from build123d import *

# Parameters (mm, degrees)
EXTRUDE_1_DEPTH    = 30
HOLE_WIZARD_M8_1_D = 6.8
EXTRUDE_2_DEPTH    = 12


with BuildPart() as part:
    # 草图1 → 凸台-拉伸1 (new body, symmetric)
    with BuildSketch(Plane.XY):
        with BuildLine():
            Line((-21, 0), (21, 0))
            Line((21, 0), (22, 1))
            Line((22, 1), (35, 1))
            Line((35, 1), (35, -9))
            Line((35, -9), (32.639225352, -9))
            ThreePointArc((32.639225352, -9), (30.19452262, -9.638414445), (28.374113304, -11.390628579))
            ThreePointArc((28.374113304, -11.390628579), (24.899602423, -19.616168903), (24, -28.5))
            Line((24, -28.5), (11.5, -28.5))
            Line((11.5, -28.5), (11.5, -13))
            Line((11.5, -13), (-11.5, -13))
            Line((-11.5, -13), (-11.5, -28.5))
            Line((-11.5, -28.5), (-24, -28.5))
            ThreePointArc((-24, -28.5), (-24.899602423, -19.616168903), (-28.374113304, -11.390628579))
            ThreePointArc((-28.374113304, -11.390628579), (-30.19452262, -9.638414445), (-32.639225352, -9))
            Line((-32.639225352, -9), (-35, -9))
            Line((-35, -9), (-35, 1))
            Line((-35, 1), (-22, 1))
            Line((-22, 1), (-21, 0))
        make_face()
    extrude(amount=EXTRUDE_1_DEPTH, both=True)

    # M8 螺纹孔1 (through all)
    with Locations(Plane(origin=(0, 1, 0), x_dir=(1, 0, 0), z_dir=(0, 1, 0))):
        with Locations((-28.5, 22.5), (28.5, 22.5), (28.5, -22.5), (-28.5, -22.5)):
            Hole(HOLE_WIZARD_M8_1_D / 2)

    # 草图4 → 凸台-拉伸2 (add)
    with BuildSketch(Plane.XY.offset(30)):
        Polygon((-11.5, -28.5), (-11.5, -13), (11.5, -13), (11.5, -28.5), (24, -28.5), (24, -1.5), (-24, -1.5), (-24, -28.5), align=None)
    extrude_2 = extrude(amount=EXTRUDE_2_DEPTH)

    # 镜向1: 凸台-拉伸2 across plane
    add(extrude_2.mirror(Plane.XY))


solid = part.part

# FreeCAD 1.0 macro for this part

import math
import FreeCAD as App
import Part
import Sketcher
Q = App.Units.Quantity

doc = App.newDocument("Part")
body = doc.addObject("PartDesign::Body", "Body")

sketch1 = body.newObject("Sketcher::SketchObject", "Sketch")
sketch1.AttachmentSupport = (doc.getObject("XY_Plane"), [""])
sketch1.MapMode = "FlatFace"
sketch1.addGeometry(Part.LineSegment(App.Vector(21, 0, 0), App.Vector(-21, 0, 0)), False)
sketch1.addGeometry(Part.LineSegment(App.Vector(-21, 0, 0), App.Vector(-22, 1, 0)), False)
sketch1.addGeometry(Part.LineSegment(App.Vector(-22, 1, 0), App.Vector(-35, 1, 0)), False)
sketch1.addGeometry(Part.LineSegment(App.Vector(-35, 1, 0), App.Vector(-35, -9, 0)), False)
sketch1.addGeometry(Part.LineSegment(App.Vector(-35, -9, 0), App.Vector(-32.6, -9, 0)), False)
sketch1.addGeometry(Part.ArcOfCircle(Part.Circle(App.Vector(-32.6, -14, 0), App.Vector(0, 0, 1), 5), math.radians(31), math.radians(90)), False)
sketch1.addGeometry(Part.ArcOfCircle(Part.Circle(App.Vector(-54, -27, 0), App.Vector(0, 0, 1), 30), math.radians(-3), math.radians(31)), False)
sketch1.addGeometry(Part.LineSegment(App.Vector(-24, -28.5, 0), App.Vector(-11.5, -28.5, 0)), False)
sketch1.addGeometry(Part.LineSegment(App.Vector(-11.5, -28.5, 0), App.Vector(-11.5, -13, 0)), False)
sketch1.addGeometry(Part.LineSegment(App.Vector(-11.5, -13, 0), App.Vector(11.5, -13, 0)), False)
sketch1.addGeometry(Part.LineSegment(App.Vector(11.5, -13, 0), App.Vector(11.5, -28.5, 0)), False)
sketch1.addGeometry(Part.LineSegment(App.Vector(11.5, -28.5, 0), App.Vector(24, -28.5, 0)), False)
sketch1.addGeometry(Part.ArcOfCircle(Part.Circle(App.Vector(54, -27, 0), App.Vector(0, 0, 1), 30), math.radians(149), math.radians(183)), False)
sketch1.addGeometry(Part.ArcOfCircle(Part.Circle(App.Vector(32.6, -14, 0), App.Vector(0, 0, 1), 5), math.radians(90), math.radians(149)), False)
sketch1.addGeometry(Part.LineSegment(App.Vector(32.6, -9, 0), App.Vector(35, -9, 0)), False)
sketch1.addGeometry(Part.LineSegment(App.Vector(35, -9, 0), App.Vector(35, 1, 0)), False)
sketch1.addGeometry(Part.LineSegment(App.Vector(35, 1, 0), App.Vector(22, 1, 0)), False)
sketch1.addGeometry(Part.LineSegment(App.Vector(22, 1, 0), App.Vector(21, 0, 0)), False)
sketch1.addConstraint(Sketcher.Constraint("Coincident", 0, 2, 1, 1))
sketch1.addConstraint(Sketcher.Constraint("Coincident", 1, 2, 2, 1))
sketch1.addConstraint(Sketcher.Constraint("Coincident", 2, 2, 3, 1))
sketch1.addConstraint(Sketcher.Constraint("Coincident", 3, 2, 4, 1))
sketch1.addConstraint(Sketcher.Constraint("Tangent", 4, 2, 5, 2))
sketch1.addConstraint(Sketcher.Constraint("Tangent", 5, 1, 6, 2))
sketch1.addConstraint(Sketcher.Constraint("Coincident", 6, 1, 7, 1))
sketch1.addConstraint(Sketcher.Constraint("Coincident", 7, 2, 8, 1))
sketch1.addConstraint(Sketcher.Constraint("Coincident", 8, 2, 9, 1))
sketch1.addConstraint(Sketcher.Constraint("Coincident", 9, 2, 10, 1))
sketch1.addConstraint(Sketcher.Constraint("Coincident", 10, 2, 11, 1))
sketch1.addConstraint(Sketcher.Constraint("Coincident", 11, 2, 12, 2))
sketch1.addConstraint(Sketcher.Constraint("Tangent", 12, 1, 13, 2))
sketch1.addConstraint(Sketcher.Constraint("Tangent", 13, 1, 14, 1))
sketch1.addConstraint(Sketcher.Constraint("Coincident", 14, 2, 15, 1))
sketch1.addConstraint(Sketcher.Constraint("Coincident", 15, 2, 16, 1))
sketch1.addConstraint(Sketcher.Constraint("Coincident", 16, 2, 17, 1))
sketch1.addConstraint(Sketcher.Constraint("Coincident", 17, 2, 0, 1))
sketch1.addConstraint(Sketcher.Constraint("Horizontal", 0))
sketch1.addConstraint(Sketcher.Constraint("Horizontal", 2))
sketch1.addConstraint(Sketcher.Constraint("Vertical", 3))
sketch1.addConstraint(Sketcher.Constraint("Horizontal", 4))
sketch1.addConstraint(Sketcher.Constraint("Horizontal", 7))
sketch1.addConstraint(Sketcher.Constraint("Vertical", 8))
sketch1.addConstraint(Sketcher.Constraint("Horizontal", 9))
sketch1.addConstraint(Sketcher.Constraint("Vertical", 10))
sketch1.addConstraint(Sketcher.Constraint("Horizontal", 11))
sketch1.addConstraint(Sketcher.Constraint("Horizontal", 14))
sketch1.addConstraint(Sketcher.Constraint("Vertical", 15))
sketch1.addConstraint(Sketcher.Constraint("Horizontal", 16))
sketch1.addConstraint(Sketcher.Constraint("Equal", 6, 12))
sketch1.addConstraint(Sketcher.Constraint("Equal", 5, 13))
sketch1.addConstraint(Sketcher.Constraint("Symmetric", 0, 2, 17, 2, -1, 1))
sketch1.addConstraint(Sketcher.Constraint("Symmetric", 6, 3, 12, 3, -2))
sketch1.addConstraint(Sketcher.Constraint("Symmetric", 7, 2, 10, 2, -2))
sketch1.addConstraint(Sketcher.Constraint("Symmetric", 3, 2, 14, 2, -2))
sketch1.addConstraint(Sketcher.Constraint("Symmetric", 1, 2, 16, 2, -2))
sketch1.addConstraint(Sketcher.Constraint("Perpendicular", 1, 17))
sketch1.addConstraint(Sketcher.Constraint("Radius", 5, Q("5 mm")))
sketch1.addConstraint(Sketcher.Constraint("Radius", 6, Q("30 mm")))
sketch1.addConstraint(Sketcher.Constraint("DistanceX", 0, 2, 0, 1, Q("42 mm")))
sketch1.addConstraint(Sketcher.Constraint("DistanceX", 2, 2, 2, 1, Q("13 mm")))
sketch1.addConstraint(Sketcher.Constraint("DistanceX", 9, 1, 9, 2, Q("23 mm")))
sketch1.addConstraint(Sketcher.Constraint("DistanceY", 3, 2, 3, 1, Q("10 mm")))
sketch1.addConstraint(Sketcher.Constraint("DistanceX", 7, 1, 7, 2, Q("12.5 mm")))
sketch1.addConstraint(Sketcher.Constraint("DistanceY", 8, 1, 8, 2, Q("15.5 mm")))
sketch1.addConstraint(Sketcher.Constraint("DistanceY", 5, 3, -1, 1, Q("14 mm")))
sketch1.addConstraint(Sketcher.Constraint("DistanceY", 8, 2, -1, 1, Q("13 mm")))
sketch1.addConstraint(Sketcher.Constraint("DistanceX", 4, 1, 4, 2, Q("2.360775 mm")))
pad1 = body.newObject("PartDesign::Pad", "Pad")
pad1.Profile = sketch1
pad1.Length = 60
pad1.Midplane = True

sketch2 = body.newObject("Sketcher::SketchObject", "Sketch001")
sketch2.AttachmentSupport = (doc.getObject("XZ_Plane"), [""])
sketch2.MapMode = "FlatFace"
sketch2.AttachmentOffset = App.Placement(App.Vector(0, 0, -1), App.Rotation())
sketch2.addGeometry(Part.Circle(App.Vector(-28.5, -22.5, 0), App.Vector(0, 0, 1), 3.4), False)
sketch2.addGeometry(Part.Circle(App.Vector(28.5, -22.5, 0), App.Vector(0, 0, 1), 3.4), False)
sketch2.addGeometry(Part.Circle(App.Vector(28.5, 22.5, 0), App.Vector(0, 0, 1), 3.4), False)
sketch2.addGeometry(Part.Circle(App.Vector(-28.5, 22.5, 0), App.Vector(0, 0, 1), 3.4), False)
sketch2.addConstraint(Sketcher.Constraint("Equal", 0, 1))
sketch2.addConstraint(Sketcher.Constraint("Equal", 1, 2))
sketch2.addConstraint(Sketcher.Constraint("Equal", 2, 3))
sketch2.addConstraint(Sketcher.Constraint("Symmetric", 0, 3, 2, 3, -1, 1))
sketch2.addConstraint(Sketcher.Constraint("Symmetric", 1, 3, 3, 3, -1, 1))
sketch2.addConstraint(Sketcher.Constraint("Symmetric", 0, 3, 1, 3, -2))
sketch2.addConstraint(Sketcher.Constraint("Diameter", 0, Q("6.8 mm")))
sketch2.addConstraint(Sketcher.Constraint("DistanceX", 0, 3, 1, 3, Q("57 mm")))
sketch2.addConstraint(Sketcher.Constraint("DistanceY", 1, 3, 2, 3, Q("45 mm")))
doc.recompute()
hole = body.newObject("PartDesign::Hole", "Hole")
hole.Profile = sketch2
hole.ThreadType = "None"
hole.Diameter = 6.8
hole.DepthType = "ThroughAll"
hole.Reversed = True

sketch3 = body.newObject("Sketcher::SketchObject", "Sketch002")
sketch3.AttachmentSupport = (doc.getObject("XY_Plane"), [""])
sketch3.MapMode = "FlatFace"
sketch3.AttachmentOffset = App.Placement(App.Vector(0, 0, 30), App.Rotation())
sketch3.addGeometry(Part.LineSegment(App.Vector(-12, -28, 0), App.Vector(-12, -13, 0)), False)
sketch3.addGeometry(Part.LineSegment(App.Vector(-12, -13, 0), App.Vector(12, -13, 0)), False)
sketch3.addGeometry(Part.LineSegment(App.Vector(12, -13, 0), App.Vector(12, -28, 0)), False)
sketch3.addGeometry(Part.LineSegment(App.Vector(12, -28, 0), App.Vector(24, -28, 0)), False)
sketch3.addGeometry(Part.LineSegment(App.Vector(24, -28, 0), App.Vector(24, -2, 0)), False)
sketch3.addGeometry(Part.LineSegment(App.Vector(24, -2, 0), App.Vector(-24, -2, 0)), False)
sketch3.addGeometry(Part.LineSegment(App.Vector(-24, -2, 0), App.Vector(-24, -28, 0)), False)
sketch3.addGeometry(Part.LineSegment(App.Vector(-24, -28, 0), App.Vector(-12, -28, 0)), False)
sketch3.addConstraint(Sketcher.Constraint("Coincident", 0, 2, 1, 1))
sketch3.addConstraint(Sketcher.Constraint("Coincident", 1, 2, 2, 1))
sketch3.addConstraint(Sketcher.Constraint("Coincident", 2, 2, 3, 1))
sketch3.addConstraint(Sketcher.Constraint("Coincident", 3, 2, 4, 1))
sketch3.addConstraint(Sketcher.Constraint("Coincident", 4, 2, 5, 1))
sketch3.addConstraint(Sketcher.Constraint("Coincident", 5, 2, 6, 1))
sketch3.addConstraint(Sketcher.Constraint("Coincident", 6, 2, 7, 1))
sketch3.addConstraint(Sketcher.Constraint("Coincident", 7, 2, 0, 1))
sketch3.addConstraint(Sketcher.Constraint("Vertical", 0))
sketch3.addConstraint(Sketcher.Constraint("Horizontal", 1))
sketch3.addConstraint(Sketcher.Constraint("Vertical", 2))
sketch3.addConstraint(Sketcher.Constraint("Horizontal", 3))
sketch3.addConstraint(Sketcher.Constraint("Vertical", 4))
sketch3.addConstraint(Sketcher.Constraint("Horizontal", 5))
sketch3.addConstraint(Sketcher.Constraint("Vertical", 6))
sketch3.addConstraint(Sketcher.Constraint("Horizontal", 7))
sketch3.addConstraint(Sketcher.Constraint("Symmetric", 3, 2, 6, 2, -2))
sketch3.addConstraint(Sketcher.Constraint("Equal", 3, 7))
sketch3.addConstraint(Sketcher.Constraint("DistanceX", 1, 1, 1, 2, Q("23 mm")))
sketch3.addConstraint(Sketcher.Constraint("DistanceX", 5, 2, 5, 1, Q("48 mm")))
sketch3.addConstraint(Sketcher.Constraint("DistanceY", 4, 1, 4, 2, Q("27 mm")))
sketch3.addConstraint(Sketcher.Constraint("DistanceY", 0, 1, 0, 2, Q("15.5 mm")))
sketch3.addConstraint(Sketcher.Constraint("DistanceY", 0, 2, -1, 1, Q("13 mm")))
pad2 = body.newObject("PartDesign::Pad", "Pad001")
pad2.Profile = sketch3
pad2.Length = 12
doc.recompute()

mirrored = body.newObject("PartDesign::Mirrored", "Mirrored")
mirrored.Originals = [pad2]
mirrored.MirrorPlane = (doc.getObject("XY_Plane"), [""])
body.Tip = mirrored

doc.recompute()
